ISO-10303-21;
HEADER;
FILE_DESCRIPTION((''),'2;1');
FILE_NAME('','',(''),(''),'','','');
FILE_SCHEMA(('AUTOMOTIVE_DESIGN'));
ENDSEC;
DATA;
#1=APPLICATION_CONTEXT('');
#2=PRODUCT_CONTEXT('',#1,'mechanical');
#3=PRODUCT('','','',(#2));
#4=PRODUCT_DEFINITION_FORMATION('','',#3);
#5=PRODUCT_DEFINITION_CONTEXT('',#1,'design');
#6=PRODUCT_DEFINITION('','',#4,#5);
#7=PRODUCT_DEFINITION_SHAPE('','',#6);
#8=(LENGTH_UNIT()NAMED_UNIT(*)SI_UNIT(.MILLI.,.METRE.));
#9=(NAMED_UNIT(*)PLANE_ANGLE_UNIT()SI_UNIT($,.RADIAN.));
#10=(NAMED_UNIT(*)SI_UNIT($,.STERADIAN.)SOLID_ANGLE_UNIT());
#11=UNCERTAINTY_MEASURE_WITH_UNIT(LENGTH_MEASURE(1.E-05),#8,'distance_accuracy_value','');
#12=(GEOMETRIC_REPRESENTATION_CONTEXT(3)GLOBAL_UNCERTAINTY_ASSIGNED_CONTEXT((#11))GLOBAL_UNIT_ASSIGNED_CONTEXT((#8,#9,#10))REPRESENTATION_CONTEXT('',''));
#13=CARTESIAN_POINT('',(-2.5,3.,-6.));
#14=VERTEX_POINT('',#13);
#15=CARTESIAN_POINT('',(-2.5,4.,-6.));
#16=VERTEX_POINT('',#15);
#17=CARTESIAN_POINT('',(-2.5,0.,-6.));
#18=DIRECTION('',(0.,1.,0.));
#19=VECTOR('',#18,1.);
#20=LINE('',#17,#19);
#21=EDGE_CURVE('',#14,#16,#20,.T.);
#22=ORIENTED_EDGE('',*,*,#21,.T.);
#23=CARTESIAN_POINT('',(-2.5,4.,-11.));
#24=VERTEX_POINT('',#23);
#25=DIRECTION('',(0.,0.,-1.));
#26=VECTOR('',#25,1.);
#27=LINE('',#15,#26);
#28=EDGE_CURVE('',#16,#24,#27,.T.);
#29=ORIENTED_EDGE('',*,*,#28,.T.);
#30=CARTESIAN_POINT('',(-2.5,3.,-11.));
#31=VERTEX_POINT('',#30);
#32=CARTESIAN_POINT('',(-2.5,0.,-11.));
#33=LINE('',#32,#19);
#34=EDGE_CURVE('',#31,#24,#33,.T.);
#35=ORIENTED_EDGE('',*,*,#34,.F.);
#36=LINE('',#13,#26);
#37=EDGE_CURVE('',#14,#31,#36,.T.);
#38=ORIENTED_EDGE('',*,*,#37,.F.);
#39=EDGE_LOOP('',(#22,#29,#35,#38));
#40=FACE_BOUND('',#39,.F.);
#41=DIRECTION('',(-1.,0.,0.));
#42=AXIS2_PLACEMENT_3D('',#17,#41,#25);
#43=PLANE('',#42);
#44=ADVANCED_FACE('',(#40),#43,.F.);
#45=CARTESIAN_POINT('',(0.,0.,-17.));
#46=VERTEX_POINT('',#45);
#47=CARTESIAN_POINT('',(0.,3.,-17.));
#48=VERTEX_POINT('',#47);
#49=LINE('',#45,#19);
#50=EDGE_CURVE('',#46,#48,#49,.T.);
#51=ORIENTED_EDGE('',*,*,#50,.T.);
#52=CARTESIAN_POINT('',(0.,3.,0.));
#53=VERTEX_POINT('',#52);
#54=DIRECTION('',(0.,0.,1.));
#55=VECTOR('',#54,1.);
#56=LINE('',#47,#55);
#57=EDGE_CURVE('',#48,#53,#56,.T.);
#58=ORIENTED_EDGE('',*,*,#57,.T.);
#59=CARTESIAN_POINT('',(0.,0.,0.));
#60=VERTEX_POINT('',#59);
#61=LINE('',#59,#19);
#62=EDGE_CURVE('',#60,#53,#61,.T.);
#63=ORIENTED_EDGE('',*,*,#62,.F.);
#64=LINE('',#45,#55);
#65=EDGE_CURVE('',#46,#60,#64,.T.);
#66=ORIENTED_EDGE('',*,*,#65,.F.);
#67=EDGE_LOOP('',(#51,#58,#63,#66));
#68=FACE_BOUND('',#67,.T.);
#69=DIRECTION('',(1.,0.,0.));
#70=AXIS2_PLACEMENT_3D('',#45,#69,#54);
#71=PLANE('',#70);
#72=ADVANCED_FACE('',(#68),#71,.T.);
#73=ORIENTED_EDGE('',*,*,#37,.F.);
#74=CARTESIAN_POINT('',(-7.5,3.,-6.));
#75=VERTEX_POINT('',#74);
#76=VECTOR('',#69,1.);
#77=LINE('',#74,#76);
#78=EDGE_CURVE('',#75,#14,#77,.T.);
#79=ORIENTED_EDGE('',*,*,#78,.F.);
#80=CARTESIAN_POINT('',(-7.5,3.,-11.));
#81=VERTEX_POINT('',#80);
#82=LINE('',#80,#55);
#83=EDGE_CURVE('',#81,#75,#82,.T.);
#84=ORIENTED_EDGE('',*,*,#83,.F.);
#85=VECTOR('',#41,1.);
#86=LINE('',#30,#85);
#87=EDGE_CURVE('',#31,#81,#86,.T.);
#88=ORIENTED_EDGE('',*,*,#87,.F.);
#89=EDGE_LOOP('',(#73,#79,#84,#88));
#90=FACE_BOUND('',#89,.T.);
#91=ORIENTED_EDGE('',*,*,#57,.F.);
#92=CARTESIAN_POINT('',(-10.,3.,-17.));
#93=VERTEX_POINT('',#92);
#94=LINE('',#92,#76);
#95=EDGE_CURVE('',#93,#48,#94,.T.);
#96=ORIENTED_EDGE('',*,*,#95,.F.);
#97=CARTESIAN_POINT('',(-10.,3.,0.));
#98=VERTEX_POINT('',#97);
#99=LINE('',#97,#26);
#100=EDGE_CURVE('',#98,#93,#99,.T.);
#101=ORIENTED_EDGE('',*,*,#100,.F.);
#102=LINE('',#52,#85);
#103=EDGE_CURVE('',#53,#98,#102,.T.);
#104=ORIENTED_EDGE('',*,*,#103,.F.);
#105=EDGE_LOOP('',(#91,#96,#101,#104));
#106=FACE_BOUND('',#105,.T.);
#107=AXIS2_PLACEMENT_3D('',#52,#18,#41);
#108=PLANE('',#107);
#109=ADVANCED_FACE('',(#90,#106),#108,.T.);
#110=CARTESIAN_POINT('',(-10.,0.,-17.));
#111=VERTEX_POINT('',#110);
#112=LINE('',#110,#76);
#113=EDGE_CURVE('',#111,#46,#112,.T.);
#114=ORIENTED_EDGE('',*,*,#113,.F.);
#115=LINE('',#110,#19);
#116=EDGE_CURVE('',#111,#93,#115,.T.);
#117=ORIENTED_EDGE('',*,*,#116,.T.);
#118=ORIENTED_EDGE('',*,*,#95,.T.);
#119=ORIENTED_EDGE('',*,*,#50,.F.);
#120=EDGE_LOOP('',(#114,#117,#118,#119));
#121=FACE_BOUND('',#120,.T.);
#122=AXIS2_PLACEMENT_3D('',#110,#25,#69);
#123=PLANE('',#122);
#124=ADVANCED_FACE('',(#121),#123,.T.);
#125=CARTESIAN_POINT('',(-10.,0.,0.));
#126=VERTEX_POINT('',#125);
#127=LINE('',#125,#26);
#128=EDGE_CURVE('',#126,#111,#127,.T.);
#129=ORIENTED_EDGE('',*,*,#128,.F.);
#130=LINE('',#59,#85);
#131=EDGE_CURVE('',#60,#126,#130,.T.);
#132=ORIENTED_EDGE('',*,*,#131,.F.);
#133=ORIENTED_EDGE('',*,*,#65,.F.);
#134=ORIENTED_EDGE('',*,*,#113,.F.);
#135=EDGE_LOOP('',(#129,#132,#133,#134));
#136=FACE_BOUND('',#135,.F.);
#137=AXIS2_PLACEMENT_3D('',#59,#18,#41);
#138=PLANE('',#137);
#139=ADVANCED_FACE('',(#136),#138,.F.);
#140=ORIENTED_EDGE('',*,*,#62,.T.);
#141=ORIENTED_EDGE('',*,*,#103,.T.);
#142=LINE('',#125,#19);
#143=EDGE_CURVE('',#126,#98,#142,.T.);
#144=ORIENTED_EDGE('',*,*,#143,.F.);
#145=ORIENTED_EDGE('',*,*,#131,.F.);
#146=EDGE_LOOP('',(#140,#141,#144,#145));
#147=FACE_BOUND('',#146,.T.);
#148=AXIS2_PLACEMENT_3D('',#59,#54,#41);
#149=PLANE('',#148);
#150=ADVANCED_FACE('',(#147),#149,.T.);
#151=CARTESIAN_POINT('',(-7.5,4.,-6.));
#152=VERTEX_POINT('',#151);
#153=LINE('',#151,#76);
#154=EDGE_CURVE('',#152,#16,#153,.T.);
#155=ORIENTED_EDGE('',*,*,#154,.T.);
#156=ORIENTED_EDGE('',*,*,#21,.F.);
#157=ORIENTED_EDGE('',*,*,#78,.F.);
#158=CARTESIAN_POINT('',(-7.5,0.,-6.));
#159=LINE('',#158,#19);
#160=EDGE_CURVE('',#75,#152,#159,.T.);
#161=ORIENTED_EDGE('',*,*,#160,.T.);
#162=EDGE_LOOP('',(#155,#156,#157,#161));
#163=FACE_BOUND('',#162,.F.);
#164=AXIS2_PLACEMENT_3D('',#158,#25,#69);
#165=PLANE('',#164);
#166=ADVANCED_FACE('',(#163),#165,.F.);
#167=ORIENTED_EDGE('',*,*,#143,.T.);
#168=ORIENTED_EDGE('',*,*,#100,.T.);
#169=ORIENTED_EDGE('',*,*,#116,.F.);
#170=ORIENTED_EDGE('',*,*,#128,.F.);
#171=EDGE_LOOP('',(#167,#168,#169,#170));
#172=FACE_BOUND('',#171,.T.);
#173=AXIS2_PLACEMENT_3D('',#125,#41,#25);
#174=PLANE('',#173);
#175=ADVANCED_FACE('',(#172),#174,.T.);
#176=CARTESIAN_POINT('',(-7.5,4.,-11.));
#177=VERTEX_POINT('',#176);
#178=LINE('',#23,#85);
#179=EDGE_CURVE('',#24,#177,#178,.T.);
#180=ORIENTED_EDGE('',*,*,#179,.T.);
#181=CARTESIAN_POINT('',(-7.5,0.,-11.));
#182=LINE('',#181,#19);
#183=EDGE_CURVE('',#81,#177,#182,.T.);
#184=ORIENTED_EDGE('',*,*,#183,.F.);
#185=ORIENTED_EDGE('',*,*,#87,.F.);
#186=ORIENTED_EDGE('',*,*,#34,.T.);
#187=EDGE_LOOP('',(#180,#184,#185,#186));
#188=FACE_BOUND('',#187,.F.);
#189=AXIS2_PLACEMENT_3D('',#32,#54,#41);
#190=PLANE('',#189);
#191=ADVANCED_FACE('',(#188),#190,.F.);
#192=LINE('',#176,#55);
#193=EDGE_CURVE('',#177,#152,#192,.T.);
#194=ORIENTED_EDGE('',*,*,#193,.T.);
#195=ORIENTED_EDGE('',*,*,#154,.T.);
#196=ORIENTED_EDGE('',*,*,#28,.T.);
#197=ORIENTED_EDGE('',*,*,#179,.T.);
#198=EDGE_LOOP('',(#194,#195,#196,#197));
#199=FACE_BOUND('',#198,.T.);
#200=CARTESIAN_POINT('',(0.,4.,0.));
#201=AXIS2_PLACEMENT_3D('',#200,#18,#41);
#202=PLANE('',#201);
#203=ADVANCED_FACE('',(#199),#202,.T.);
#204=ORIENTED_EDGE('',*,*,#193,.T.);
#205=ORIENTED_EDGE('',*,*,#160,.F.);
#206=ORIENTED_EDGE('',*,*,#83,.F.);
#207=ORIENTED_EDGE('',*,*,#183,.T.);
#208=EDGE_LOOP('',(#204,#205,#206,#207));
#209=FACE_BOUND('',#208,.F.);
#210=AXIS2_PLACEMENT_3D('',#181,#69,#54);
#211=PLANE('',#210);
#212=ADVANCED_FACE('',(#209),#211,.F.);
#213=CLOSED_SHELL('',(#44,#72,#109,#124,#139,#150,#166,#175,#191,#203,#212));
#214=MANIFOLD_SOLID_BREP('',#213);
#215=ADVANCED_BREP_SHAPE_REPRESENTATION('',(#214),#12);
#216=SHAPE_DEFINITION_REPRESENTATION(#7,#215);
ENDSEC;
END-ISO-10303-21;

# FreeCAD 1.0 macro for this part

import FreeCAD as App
import Part
import Sketcher

V = App.Vector


def add_polygon(sketch, points):
    """Adds a closed chain of lines whose ends are joined by coincident constraints."""
    first, n = sketch.GeometryCount, len(points)
    for a, b in zip(points, points[1:] + points[:1]):
        sketch.addGeometry(Part.LineSegment(App.Vector(*a, 0), App.Vector(*b, 0)), False)
    for i in range(n):
        sketch.addConstraint(Sketcher.Constraint("Coincident", first + i, 2, first + (i + 1) % n, 1))

doc = App.newDocument("Part")
body = doc.addObject("PartDesign::Body", "Body")

# Sketch on XZ plane
sketch1 = doc.addObject("Sketcher::SketchObject", "Sketch")
body.addObject(sketch1)
sketch1.AttachmentSupport = (doc.XZ_Plane, [""])
sketch1.MapMode = "FlatFace"
add_polygon(sketch1, [(-10, 0), (0, 0), (0, -17), (-10, -17)])  # lines 0-3
add_polygon(sketch1, [(-2, -6), (-8, -6), (-8, -11), (-2, -11)])  # lines 4-7
sketch1.addConstraint([
    Sketcher.Constraint("Horizontal", 0),
    Sketcher.Constraint("Vertical", 1),
    Sketcher.Constraint("Horizontal", 2),
    Sketcher.Constraint("Vertical", 3),
    Sketcher.Constraint("Horizontal", 4),
    Sketcher.Constraint("Vertical", 5),
    Sketcher.Constraint("Horizontal", 6),
    Sketcher.Constraint("Vertical", 7),
    Sketcher.Constraint("Coincident", 0, 2, -1, 1),
    Sketcher.Constraint("Equal", 6, 5),
    Sketcher.Constraint("DistanceX", 0, 1, 0, 2, 10.0),
    Sketcher.Constraint("DistanceX", 4, 2, 4, 1, 5.0),
    Sketcher.Constraint("DistanceY", 1, 2, 1, 1, 17.0),
    Sketcher.Constraint("DistanceY", 4, 2, -1, 1, 6.0),
    Sketcher.Constraint("DistanceX", 6, 2, -1, 1, 2.5),
])
pad1 = doc.addObject("PartDesign::Pad", "Pad")
body.addObject(pad1)
pad1.Profile = sketch1
pad1.Length = 3
pad1.Reversed = True

# Sketch on XZ plane
sketch2 = doc.addObject("Sketcher::SketchObject", "Sketch001")
body.addObject(sketch2)
sketch2.AttachmentSupport = (doc.XZ_Plane, [""])
sketch2.MapMode = "FlatFace"
add_polygon(sketch2, [(-8, -11), (-8, -6), (-2, -6), (-2, -11)])  # lines 0-3
sketch2.addConstraint([
    Sketcher.Constraint("Vertical", 0),
    Sketcher.Constraint("Horizontal", 1),
    Sketcher.Constraint("Vertical", 2),
    Sketcher.Constraint("Horizontal", 3),
    Sketcher.Constraint("Equal", 3, 0),
    Sketcher.Constraint("DistanceX", 1, 1, 1, 2, 5.0),
    Sketcher.Constraint("DistanceY", 0, 2, -1, 1, 6.0),
    Sketcher.Constraint("DistanceX", 1, 2, -1, 1, 2.5),
])
pad2 = doc.addObject("PartDesign::Pad", "Pad001")
body.addObject(pad2)
pad2.Profile = sketch2
pad2.Length = 4
pad2.Reversed = True

doc.recompute()
